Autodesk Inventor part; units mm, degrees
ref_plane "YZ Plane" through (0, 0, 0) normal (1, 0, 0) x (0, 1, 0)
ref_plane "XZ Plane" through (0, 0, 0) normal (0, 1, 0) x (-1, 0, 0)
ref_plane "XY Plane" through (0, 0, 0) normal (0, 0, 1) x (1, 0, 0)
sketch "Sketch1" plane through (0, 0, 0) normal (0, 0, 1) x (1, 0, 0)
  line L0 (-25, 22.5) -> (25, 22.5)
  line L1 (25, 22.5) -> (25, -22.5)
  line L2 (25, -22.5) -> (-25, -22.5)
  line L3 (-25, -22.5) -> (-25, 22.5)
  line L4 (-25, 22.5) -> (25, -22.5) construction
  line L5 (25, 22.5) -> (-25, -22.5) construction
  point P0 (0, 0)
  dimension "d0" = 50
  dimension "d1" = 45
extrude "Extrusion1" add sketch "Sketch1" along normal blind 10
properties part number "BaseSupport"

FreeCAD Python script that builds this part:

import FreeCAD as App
import Part
import Sketcher

V = App.Vector
Q = App.Units.Quantity


def add_polygon(sketch, points):
    """Adds a closed chain of lines whose ends are joined by coincident constraints."""
    first, n = sketch.GeometryCount, len(points)
    for a, b in zip(points, points[1:] + points[:1]):
        sketch.addGeometry(Part.LineSegment(App.Vector(*a, 0), App.Vector(*b, 0)), False)
    for i in range(n):
        sketch.addConstraint(Sketcher.Constraint("Coincident", first + i, 2, first + (i + 1) % n, 1))

doc = App.newDocument("Part")
params = doc.addObject("Spreadsheet::Sheet", "Params")
for row, (alias, value) in enumerate([
    ("sketch1_width", "50 mm"),
    ("sketch1_height", "45 mm"),
    ("pad1_length", "10 mm"),
], start=1):
    params.set(f"A{row}", alias)
    params.set(f"B{row}", "=" + value)
    params.setAlias(f"B{row}", alias)

body = doc.addObject("PartDesign::Body", "Body")

# Sketch on XY plane
sketch1 = doc.addObject("Sketcher::SketchObject", "Sketch")
body.addObject(sketch1)
sketch1.AttachmentSupport = (doc.XY_Plane, [""])
sketch1.MapMode = "FlatFace"
add_polygon(sketch1, [(25, 22), (-25, 22), (-25, -22), (25, -22)])  # lines 0-3
sketch1.addConstraint([
    Sketcher.Constraint("Horizontal", 0),
    Sketcher.Constraint("Vertical", 1),
    Sketcher.Constraint("Horizontal", 2),
    Sketcher.Constraint("Vertical", 3),
    Sketcher.Constraint("Symmetric", 0, 2, 2, 2, -1, 1),
    Sketcher.Constraint("DistanceX", 0, 2, 0, 1, Q("50 mm")),
    Sketcher.Constraint("DistanceY", 1, 2, 1, 1, Q("45 mm")),
])
sketch1.setExpression("Constraints[9]", "Params.sketch1_width")
sketch1.setExpression("Constraints[10]", "Params.sketch1_height")
pad1 = doc.addObject("PartDesign::Pad", "Pad")
body.addObject(pad1)
pad1.Profile = sketch1
pad1.setExpression("Length", "Params.pad1_length")

doc.recompute()
